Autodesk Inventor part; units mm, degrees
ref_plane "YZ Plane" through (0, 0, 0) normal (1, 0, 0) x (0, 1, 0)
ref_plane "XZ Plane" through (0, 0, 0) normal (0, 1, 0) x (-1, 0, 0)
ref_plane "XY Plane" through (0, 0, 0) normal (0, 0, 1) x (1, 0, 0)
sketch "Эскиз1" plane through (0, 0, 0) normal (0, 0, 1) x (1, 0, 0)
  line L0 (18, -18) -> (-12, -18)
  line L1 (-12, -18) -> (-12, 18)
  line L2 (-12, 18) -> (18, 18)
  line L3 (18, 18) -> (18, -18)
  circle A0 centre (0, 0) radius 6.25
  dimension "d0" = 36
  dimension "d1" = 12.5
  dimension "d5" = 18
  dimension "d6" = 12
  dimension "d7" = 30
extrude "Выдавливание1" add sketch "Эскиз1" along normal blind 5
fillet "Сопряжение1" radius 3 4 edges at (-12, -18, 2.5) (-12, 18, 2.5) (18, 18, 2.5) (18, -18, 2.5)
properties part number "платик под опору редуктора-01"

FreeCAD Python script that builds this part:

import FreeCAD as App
import Part
import Sketcher
from FreeCAD import Vector
Q = App.Units.Quantity


def edges_at(feature, points):
    """Names of the edges that pass closest to the given points."""
    edges = feature.Shape.Edges
    near = lambda p: min(range(len(edges)), key=lambda i: edges[i].distToShape(Part.Vertex(*p))[0])
    return sorted({f"Edge{near(p) + 1}" for p in points})

doc = App.newDocument("Part")
params = doc.addObject("Spreadsheet::Sheet", "Params")
for row, (alias, value) in enumerate([
    ("sketch1_diameter", "12.5 mm"),
    ("sketch1_width", "30 mm"),
    ("sketch1_height", "36 mm"),
    ("pad1_length", "5 mm"),
    ("fillet_radius", "3 mm"),
], start=1):
    params.set(f"A{row}", alias)
    params.set(f"B{row}", "=" + value)
    params.setAlias(f"B{row}", alias)

body = doc.addObject("PartDesign::Body", "Body")

# Sketch on XY plane
sketch1 = body.newObject("Sketcher::SketchObject", "Sketch")
sketch1.AttachmentSupport = (doc.getObject("XY_Plane"), [""])
sketch1.MapMode = "FlatFace"
sketch1.addGeometry(Part.LineSegment(Vector(-12, -18, 0), Vector(18, -18, 0)), False)
sketch1.addGeometry(Part.LineSegment(Vector(18, -18, 0), Vector(18, 18, 0)), False)
sketch1.addGeometry(Part.LineSegment(Vector(18, 18, 0), Vector(-12, 18, 0)), False)
sketch1.addGeometry(Part.LineSegment(Vector(-12, 18, 0), Vector(-12, -18, 0)), False)
sketch1.addGeometry(Part.Circle(Vector(0, 0, 0), Vector(0, 0, 1), 6), False)
sketch1.addConstraint(Sketcher.Constraint("Coincident", 0, 2, 1, 1))
sketch1.addConstraint(Sketcher.Constraint("Coincident", 1, 2, 2, 1))
sketch1.addConstraint(Sketcher.Constraint("Coincident", 2, 2, 3, 1))
sketch1.addConstraint(Sketcher.Constraint("Coincident", 3, 2, 0, 1))
sketch1.addConstraint(Sketcher.Constraint("Horizontal", 0))
sketch1.addConstraint(Sketcher.Constraint("Vertical", 1))
sketch1.addConstraint(Sketcher.Constraint("Horizontal", 2))
sketch1.addConstraint(Sketcher.Constraint("Vertical", 3))
sketch1.addConstraint(Sketcher.Constraint("Coincident", 4, 3, -1, 1))
sketch1.addConstraint(Sketcher.Constraint("Diameter", 4, Q("12.5 mm")))
sketch1.addConstraint(Sketcher.Constraint("DistanceX", 0, 1, 0, 2, Q("30 mm")))
sketch1.addConstraint(Sketcher.Constraint("DistanceY", 1, 1, 1, 2, Q("36 mm")))
sketch1.addConstraint(Sketcher.Constraint("DistanceX", -1, 1, 0, 2, Q("18 mm")))
sketch1.addConstraint(Sketcher.Constraint("DistanceY", 0, 2, -1, 1, Q("18 mm")))
sketch1.setExpression("Constraints[9]", "Params.sketch1_diameter")
sketch1.setExpression("Constraints[10]", "Params.sketch1_width")
sketch1.setExpression("Constraints[11]", "Params.sketch1_height")
pad1 = body.newObject("PartDesign::Pad", "Pad")
pad1.Profile = sketch1
pad1.setExpression("Length", "Params.pad1_length")
doc.recompute()

fillet = body.newObject("PartDesign::Fillet", "Fillet")
fillet.Base = (pad1, edges_at(pad1, [
    (-12, -18, 2.5),
    (-12, 18, 2.5),
    (18, 18, 2.5),
    (18, -18, 2.5),
]))
fillet.setExpression("Radius", "Params.fillet_radius")

doc.recompute()
